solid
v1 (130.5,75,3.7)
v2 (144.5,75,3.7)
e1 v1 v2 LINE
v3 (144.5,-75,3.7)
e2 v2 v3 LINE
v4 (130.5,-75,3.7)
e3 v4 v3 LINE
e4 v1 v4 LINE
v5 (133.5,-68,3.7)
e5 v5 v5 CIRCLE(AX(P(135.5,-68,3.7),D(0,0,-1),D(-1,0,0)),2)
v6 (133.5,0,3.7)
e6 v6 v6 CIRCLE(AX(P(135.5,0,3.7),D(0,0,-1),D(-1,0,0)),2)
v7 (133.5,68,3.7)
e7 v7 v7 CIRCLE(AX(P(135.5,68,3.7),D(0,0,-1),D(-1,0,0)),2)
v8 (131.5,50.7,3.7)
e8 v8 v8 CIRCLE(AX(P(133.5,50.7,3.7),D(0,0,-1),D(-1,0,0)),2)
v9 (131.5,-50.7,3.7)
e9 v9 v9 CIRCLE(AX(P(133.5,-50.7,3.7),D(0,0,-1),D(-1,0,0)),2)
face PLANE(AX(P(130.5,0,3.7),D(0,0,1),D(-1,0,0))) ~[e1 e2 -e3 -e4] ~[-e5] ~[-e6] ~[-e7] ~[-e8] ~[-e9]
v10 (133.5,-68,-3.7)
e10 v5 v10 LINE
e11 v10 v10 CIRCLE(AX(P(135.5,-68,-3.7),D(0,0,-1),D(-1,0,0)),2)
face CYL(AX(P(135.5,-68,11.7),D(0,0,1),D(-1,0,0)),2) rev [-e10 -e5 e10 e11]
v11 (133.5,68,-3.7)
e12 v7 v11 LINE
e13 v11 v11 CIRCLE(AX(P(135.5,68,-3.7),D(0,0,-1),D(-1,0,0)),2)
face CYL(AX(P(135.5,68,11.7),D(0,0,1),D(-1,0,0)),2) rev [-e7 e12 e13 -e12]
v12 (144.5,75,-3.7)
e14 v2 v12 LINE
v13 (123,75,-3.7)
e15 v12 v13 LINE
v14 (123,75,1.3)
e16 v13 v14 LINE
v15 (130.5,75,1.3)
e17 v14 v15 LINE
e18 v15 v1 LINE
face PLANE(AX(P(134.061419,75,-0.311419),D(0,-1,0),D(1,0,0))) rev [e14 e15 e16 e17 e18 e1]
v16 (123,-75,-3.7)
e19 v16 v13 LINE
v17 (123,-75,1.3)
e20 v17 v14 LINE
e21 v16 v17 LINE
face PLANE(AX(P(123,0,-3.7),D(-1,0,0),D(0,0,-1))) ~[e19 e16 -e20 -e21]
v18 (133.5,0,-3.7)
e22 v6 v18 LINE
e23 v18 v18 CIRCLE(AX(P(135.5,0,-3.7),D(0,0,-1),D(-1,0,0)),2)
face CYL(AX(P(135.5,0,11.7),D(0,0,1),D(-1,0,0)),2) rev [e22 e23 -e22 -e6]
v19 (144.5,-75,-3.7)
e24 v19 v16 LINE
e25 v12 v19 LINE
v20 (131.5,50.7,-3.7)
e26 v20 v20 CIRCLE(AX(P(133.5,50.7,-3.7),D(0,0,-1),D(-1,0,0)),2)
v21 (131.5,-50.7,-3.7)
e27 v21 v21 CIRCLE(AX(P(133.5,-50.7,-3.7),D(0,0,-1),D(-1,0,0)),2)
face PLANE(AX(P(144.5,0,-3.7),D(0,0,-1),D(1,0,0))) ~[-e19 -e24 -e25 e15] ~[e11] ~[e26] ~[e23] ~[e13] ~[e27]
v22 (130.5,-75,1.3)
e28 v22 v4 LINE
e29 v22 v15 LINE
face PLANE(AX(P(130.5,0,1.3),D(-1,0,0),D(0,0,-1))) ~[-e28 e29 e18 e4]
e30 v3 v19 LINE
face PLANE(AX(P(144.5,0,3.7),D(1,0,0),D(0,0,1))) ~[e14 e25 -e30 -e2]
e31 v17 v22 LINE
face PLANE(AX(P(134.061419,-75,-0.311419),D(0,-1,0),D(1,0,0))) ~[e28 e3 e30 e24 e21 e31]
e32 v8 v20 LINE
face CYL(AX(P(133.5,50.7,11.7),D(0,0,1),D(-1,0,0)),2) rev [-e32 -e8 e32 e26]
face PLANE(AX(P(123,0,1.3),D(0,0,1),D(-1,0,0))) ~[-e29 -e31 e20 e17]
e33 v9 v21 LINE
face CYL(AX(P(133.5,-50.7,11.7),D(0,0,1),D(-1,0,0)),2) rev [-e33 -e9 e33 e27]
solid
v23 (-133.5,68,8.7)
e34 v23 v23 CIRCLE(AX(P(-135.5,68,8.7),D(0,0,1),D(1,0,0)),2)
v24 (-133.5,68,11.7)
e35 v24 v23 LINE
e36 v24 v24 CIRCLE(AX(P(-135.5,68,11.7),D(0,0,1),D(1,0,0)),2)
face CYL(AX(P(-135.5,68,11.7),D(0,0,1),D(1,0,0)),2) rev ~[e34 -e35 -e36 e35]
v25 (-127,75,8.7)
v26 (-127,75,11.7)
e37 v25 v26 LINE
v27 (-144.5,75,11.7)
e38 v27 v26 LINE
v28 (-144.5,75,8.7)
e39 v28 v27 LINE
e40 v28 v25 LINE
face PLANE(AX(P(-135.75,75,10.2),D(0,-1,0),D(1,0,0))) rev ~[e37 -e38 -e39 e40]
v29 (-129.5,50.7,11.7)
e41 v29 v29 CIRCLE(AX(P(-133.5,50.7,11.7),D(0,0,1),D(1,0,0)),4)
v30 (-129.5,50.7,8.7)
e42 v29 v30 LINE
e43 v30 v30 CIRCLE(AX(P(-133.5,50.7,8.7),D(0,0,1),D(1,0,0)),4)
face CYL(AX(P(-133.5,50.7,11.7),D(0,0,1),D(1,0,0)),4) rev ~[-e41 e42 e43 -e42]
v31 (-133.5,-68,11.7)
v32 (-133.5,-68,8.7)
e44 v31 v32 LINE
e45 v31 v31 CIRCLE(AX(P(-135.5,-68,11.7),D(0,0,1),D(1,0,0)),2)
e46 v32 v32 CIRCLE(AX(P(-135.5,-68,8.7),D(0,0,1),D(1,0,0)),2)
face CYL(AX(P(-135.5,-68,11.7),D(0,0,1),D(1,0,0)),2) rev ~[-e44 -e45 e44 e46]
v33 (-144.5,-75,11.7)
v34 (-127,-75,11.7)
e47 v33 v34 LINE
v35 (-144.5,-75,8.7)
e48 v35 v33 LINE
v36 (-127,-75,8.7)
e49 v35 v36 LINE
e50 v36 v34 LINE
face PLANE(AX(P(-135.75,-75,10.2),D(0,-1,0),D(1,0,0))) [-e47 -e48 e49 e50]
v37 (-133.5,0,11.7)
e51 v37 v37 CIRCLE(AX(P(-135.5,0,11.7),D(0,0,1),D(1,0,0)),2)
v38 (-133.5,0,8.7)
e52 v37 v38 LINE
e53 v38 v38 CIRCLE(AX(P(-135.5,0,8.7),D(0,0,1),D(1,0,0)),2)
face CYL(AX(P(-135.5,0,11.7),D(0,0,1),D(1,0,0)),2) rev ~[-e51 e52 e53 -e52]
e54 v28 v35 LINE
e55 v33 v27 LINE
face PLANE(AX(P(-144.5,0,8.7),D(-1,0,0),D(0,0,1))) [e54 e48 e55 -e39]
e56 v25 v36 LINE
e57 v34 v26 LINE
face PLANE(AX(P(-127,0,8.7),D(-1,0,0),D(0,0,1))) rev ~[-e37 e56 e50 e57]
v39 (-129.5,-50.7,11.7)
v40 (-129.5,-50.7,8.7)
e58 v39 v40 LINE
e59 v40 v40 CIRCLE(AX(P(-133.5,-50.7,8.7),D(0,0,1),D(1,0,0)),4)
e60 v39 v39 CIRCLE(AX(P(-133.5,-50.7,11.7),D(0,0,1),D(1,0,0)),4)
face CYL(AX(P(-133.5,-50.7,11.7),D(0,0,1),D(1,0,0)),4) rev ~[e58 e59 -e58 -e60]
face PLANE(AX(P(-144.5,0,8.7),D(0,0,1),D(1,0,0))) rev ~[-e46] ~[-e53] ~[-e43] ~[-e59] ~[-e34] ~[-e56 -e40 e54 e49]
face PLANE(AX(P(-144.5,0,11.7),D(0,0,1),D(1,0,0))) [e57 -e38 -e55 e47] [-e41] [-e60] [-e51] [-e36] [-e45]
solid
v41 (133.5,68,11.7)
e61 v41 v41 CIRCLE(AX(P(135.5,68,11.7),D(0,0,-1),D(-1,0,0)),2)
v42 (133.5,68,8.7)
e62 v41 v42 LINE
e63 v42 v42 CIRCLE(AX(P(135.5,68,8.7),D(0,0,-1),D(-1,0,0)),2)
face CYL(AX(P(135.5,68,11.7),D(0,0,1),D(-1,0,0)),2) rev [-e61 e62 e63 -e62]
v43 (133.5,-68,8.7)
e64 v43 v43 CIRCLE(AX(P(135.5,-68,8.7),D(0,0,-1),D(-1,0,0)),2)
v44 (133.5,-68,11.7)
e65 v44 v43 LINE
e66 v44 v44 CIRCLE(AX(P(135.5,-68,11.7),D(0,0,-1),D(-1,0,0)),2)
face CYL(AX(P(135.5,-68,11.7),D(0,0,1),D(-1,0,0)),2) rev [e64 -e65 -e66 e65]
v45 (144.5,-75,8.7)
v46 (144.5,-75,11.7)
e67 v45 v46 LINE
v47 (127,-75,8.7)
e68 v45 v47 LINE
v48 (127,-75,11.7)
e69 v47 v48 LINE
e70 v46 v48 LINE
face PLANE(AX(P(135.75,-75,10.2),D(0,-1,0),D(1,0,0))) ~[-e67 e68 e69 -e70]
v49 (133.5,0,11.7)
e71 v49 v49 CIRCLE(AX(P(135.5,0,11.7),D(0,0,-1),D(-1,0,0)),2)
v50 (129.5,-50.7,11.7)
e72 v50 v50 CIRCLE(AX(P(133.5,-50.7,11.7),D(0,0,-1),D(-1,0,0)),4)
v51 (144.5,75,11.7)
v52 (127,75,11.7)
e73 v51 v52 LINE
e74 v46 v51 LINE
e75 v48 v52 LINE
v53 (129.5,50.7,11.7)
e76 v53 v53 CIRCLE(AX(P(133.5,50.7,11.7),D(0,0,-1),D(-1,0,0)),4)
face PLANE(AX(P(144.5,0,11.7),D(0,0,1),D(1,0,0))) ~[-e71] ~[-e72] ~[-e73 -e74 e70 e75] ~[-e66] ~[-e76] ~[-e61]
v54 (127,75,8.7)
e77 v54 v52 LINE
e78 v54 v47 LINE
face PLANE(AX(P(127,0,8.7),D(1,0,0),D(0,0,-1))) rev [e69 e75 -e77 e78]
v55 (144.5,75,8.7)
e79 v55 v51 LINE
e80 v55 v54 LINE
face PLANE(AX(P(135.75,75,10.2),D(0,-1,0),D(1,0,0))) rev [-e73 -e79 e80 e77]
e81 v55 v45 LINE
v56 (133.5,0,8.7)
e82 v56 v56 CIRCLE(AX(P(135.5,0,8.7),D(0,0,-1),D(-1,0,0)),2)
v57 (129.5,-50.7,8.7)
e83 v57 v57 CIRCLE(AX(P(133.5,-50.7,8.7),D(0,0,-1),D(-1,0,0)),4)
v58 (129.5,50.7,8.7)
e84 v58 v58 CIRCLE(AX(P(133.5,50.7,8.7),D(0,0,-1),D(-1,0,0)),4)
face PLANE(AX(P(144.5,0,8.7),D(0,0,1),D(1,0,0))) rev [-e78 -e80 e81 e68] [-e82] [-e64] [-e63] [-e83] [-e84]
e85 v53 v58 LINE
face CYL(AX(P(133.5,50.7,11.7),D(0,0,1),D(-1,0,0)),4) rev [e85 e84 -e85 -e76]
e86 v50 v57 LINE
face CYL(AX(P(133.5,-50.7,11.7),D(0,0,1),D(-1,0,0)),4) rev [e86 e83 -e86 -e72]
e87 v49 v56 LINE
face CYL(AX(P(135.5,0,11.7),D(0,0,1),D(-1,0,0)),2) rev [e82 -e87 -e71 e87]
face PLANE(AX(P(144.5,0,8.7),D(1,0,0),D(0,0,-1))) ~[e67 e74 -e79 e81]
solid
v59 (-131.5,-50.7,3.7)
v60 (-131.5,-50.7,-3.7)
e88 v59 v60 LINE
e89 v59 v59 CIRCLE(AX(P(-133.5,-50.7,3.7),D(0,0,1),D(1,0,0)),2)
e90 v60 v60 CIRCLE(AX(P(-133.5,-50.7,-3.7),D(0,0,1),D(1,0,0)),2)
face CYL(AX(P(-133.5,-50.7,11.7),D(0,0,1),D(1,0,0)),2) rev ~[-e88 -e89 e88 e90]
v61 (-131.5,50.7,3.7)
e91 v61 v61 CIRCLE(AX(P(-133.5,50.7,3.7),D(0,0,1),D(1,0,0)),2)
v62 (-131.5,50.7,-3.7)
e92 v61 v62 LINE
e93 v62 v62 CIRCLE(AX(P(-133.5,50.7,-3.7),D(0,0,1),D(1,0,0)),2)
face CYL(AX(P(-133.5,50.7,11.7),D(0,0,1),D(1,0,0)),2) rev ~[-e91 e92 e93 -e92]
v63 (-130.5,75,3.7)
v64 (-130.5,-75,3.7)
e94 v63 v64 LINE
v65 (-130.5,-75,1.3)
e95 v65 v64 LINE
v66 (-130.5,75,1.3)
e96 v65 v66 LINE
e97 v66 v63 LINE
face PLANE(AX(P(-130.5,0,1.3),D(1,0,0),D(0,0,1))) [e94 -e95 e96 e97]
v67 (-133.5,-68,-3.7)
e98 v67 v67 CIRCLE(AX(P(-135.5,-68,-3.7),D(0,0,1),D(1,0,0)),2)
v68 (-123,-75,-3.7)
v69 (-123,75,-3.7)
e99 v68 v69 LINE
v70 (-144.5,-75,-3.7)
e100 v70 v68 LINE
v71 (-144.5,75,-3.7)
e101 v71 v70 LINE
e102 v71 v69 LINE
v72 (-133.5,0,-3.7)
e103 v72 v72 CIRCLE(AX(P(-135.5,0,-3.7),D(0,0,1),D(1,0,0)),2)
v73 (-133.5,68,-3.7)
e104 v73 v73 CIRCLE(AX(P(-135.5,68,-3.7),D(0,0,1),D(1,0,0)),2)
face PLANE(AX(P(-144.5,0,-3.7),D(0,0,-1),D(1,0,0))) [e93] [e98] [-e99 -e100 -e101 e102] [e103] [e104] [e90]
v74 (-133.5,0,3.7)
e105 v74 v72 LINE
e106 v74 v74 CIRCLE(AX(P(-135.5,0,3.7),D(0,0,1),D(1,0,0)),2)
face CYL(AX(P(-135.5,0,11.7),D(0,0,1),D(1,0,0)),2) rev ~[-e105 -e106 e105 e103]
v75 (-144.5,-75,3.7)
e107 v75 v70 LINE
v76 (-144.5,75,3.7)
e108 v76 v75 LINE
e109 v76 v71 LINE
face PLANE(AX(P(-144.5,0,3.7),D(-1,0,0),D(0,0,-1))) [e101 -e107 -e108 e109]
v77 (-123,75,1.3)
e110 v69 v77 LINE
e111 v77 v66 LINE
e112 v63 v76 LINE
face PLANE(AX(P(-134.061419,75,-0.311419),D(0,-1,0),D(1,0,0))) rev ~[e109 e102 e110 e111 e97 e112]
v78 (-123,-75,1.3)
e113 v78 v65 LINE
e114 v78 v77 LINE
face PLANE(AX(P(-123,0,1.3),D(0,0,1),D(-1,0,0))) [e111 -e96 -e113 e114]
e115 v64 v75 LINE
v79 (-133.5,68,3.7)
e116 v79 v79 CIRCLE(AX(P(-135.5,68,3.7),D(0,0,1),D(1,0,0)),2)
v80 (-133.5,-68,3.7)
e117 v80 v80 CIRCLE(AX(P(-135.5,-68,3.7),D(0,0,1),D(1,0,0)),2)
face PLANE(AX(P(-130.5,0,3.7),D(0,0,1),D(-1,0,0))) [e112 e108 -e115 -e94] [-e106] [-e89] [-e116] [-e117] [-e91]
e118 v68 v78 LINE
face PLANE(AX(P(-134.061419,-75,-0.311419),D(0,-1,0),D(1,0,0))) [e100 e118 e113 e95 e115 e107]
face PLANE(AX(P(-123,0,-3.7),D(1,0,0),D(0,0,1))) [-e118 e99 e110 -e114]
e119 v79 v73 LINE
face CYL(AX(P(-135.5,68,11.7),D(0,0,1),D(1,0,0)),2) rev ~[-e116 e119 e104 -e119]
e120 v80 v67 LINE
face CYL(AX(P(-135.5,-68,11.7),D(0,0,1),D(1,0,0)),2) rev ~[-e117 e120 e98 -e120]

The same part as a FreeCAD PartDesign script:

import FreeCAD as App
import Part
import Sketcher

V = App.Vector


def add_polygon(sketch, points):
    """Adds a closed chain of lines whose ends are joined by coincident constraints."""
    first, n = sketch.GeometryCount, len(points)
    for a, b in zip(points, points[1:] + points[:1]):
        sketch.addGeometry(Part.LineSegment(App.Vector(*a, 0), App.Vector(*b, 0)), False)
    for i in range(n):
        sketch.addConstraint(Sketcher.Constraint("Coincident", first + i, 2, first + (i + 1) % n, 1))

doc = App.newDocument("Part")
body = doc.addObject("PartDesign::Body", "Body")
body.AllowCompound = True

# Sketch on XZ plane
sketch1 = body.newObject("Sketcher::SketchObject", "Sketch")
sketch1.AttachmentSupport = (doc.getObject("XZ_Plane"), [""])
sketch1.MapMode = "FlatFace"
add_polygon(sketch1, [(-144.5, 11.7), (-144.5, 8.7), (-127, 8.7), (-127, 11.7)])  # lines 0-3
add_polygon(sketch1, [(-130.5, 1.3), (-130.5, 3.7), (-144.5, 3.7), (-144.5, -3.7), (-123, -3.7), (-123, 1.3)])  # lines 4-9
sketch1.addConstraint([
    Sketcher.Constraint("Vertical", 0),
    Sketcher.Constraint("Horizontal", 1),
    Sketcher.Constraint("Vertical", 2),
    Sketcher.Constraint("Horizontal", 3),
    Sketcher.Constraint("Vertical", 4),
    Sketcher.Constraint("Horizontal", 5),
    Sketcher.Constraint("Vertical", 6),
    Sketcher.Constraint("Horizontal", 7),
    Sketcher.Constraint("Vertical", 8),
    Sketcher.Constraint("Horizontal", 9),
    Sketcher.Constraint("Vertical", 3, 2, 5, 2),
    Sketcher.Constraint("DistanceX", 5, 2, 5, 1, 14.0),
    Sketcher.Constraint("DistanceY", 0, 2, 0, 1, 3.0),
    Sketcher.Constraint("DistanceY", 8, 1, 8, 2, 5.0),
    Sketcher.Constraint("DistanceX", 1, 1, 1, 2, 17.5),
    Sketcher.Constraint("DistanceX", 7, 1, 7, 2, 21.5),
    Sketcher.Constraint("DistanceY", 4, 1, 4, 2, 2.4),
    Sketcher.Constraint("DistanceX", 1, 2, -1, 1, 127.0),
    Sketcher.Constraint("DistanceY", 4, 2, 1, 2, 5.0),
    Sketcher.Constraint("DistanceY", -1, 1, 0, 2, 8.7),
])
pad1 = body.newObject("PartDesign::Pad", "Pad")
pad1.Profile = sketch1
pad1.Length = 150
pad1.Midplane = True

# Sketch on XY plane
sketch2 = body.newObject("Sketcher::SketchObject", "Sketch001")
sketch2.AttachmentSupport = (doc.getObject("XY_Plane"), [""])
sketch2.MapMode = "FlatFace"
sketch2.AttachmentOffset = App.Placement(V(0, 0, 11.7), App.Rotation())
sketch2.addGeometry([
    Part.Circle(V(-135.5, 68, 0), V(0, 0, 1), 2),  # 0
    Part.Circle(V(-133.5, 50.7, 0), V(0, 0, 1), 2),  # 1
    Part.Circle(V(-135.5, 0, 0), V(0, 0, 1), 2),  # 2
    Part.Circle(V(-133.5, -50.7, 0), V(0, 0, 1), 2),  # 3
    Part.Circle(V(-135.5, -68, 0), V(0, 0, 1), 2),  # 4
], False)
sketch2.addConstraint([
    Sketcher.Constraint("Equal", 0, 1),
    Sketcher.Constraint("Equal", 1, 2),
    Sketcher.Constraint("Equal", 2, 3),
    Sketcher.Constraint("Equal", 3, 4),
    Sketcher.Constraint("Symmetric", 1, 3, 3, 3, -1),
    Sketcher.Constraint("Symmetric", 0, 3, 4, 3, -1),
    Sketcher.Constraint("PointOnObject", 2, 3, -1),
    Sketcher.Constraint("Vertical", 0, 3, 2, 3),
    Sketcher.Constraint("Diameter", 0, 4.0),
    Sketcher.Constraint("DistanceY", -1, 1, 0, 3, 68.0),
    Sketcher.Constraint("DistanceX", 0, 3, 1, 3, 2.0),
    Sketcher.Constraint("DistanceX", 0, 3, -1, 1, 135.5),
    Sketcher.Constraint("DistanceY", -1, 1, 1, 3, 50.7),
])
pocket1 = body.newObject("PartDesign::Pocket", "Pocket")
pocket1.Profile = sketch2
pocket1.Type = "ThroughAll"

# Sketch on XY plane
sketch3 = body.newObject("Sketcher::SketchObject", "Sketch002")
sketch3.AttachmentSupport = (doc.getObject("XY_Plane"), [""])
sketch3.MapMode = "FlatFace"
sketch3.AttachmentOffset = App.Placement(V(0, 0, 11.7), App.Rotation())
sketch3.addGeometry([
    Part.Circle(V(-133.5, 50.7, 0), V(0, 0, 1), 4),
    Part.Circle(V(-133.5, 50.7, 0), V(0, 0, 1), 2),
    Part.Circle(V(-133.5, -50.7, 0), V(0, 0, 1), 4),
    Part.Circle(V(-133.5, -50.7, 0), V(0, 0, 1), 2),
], False)
sketch3.addConstraint([
    Sketcher.Constraint("Coincident", 1, 3, 0, 3),
    Sketcher.Constraint("Coincident", 3, 3, 2, 3),
    Sketcher.Constraint("Equal", 0, 2),
    Sketcher.Constraint("Equal", 1, 3),
    Sketcher.Constraint("Symmetric", 0, 3, 2, 3, -1),
    Sketcher.Constraint("Diameter", 0, 8.0),
    Sketcher.Constraint("Diameter", 1, 4.0),
    Sketcher.Constraint("DistanceX", 0, 3, -1, 1, 133.5),
    Sketcher.Constraint("DistanceY", -1, 1, 0, 3, 50.7),
])
pocket2 = body.newObject("PartDesign::Pocket", "Pocket001")
pocket2.Profile = sketch3
pocket2.Length = 3
body2 = doc.addObject("PartDesign::Body", "Body001")
body2.AllowCompound = True
doc.recompute()

mirroring = doc.addObject("Part::Mirroring", "Mirroring")
mirroring.Source = body
mirroring.Base = V(0, 0, 0)
mirroring.Normal = V(1, 0, 0)
body2.BaseFeature = mirroring
doc.recompute()
mirroring.Visibility = False

doc.recompute()
